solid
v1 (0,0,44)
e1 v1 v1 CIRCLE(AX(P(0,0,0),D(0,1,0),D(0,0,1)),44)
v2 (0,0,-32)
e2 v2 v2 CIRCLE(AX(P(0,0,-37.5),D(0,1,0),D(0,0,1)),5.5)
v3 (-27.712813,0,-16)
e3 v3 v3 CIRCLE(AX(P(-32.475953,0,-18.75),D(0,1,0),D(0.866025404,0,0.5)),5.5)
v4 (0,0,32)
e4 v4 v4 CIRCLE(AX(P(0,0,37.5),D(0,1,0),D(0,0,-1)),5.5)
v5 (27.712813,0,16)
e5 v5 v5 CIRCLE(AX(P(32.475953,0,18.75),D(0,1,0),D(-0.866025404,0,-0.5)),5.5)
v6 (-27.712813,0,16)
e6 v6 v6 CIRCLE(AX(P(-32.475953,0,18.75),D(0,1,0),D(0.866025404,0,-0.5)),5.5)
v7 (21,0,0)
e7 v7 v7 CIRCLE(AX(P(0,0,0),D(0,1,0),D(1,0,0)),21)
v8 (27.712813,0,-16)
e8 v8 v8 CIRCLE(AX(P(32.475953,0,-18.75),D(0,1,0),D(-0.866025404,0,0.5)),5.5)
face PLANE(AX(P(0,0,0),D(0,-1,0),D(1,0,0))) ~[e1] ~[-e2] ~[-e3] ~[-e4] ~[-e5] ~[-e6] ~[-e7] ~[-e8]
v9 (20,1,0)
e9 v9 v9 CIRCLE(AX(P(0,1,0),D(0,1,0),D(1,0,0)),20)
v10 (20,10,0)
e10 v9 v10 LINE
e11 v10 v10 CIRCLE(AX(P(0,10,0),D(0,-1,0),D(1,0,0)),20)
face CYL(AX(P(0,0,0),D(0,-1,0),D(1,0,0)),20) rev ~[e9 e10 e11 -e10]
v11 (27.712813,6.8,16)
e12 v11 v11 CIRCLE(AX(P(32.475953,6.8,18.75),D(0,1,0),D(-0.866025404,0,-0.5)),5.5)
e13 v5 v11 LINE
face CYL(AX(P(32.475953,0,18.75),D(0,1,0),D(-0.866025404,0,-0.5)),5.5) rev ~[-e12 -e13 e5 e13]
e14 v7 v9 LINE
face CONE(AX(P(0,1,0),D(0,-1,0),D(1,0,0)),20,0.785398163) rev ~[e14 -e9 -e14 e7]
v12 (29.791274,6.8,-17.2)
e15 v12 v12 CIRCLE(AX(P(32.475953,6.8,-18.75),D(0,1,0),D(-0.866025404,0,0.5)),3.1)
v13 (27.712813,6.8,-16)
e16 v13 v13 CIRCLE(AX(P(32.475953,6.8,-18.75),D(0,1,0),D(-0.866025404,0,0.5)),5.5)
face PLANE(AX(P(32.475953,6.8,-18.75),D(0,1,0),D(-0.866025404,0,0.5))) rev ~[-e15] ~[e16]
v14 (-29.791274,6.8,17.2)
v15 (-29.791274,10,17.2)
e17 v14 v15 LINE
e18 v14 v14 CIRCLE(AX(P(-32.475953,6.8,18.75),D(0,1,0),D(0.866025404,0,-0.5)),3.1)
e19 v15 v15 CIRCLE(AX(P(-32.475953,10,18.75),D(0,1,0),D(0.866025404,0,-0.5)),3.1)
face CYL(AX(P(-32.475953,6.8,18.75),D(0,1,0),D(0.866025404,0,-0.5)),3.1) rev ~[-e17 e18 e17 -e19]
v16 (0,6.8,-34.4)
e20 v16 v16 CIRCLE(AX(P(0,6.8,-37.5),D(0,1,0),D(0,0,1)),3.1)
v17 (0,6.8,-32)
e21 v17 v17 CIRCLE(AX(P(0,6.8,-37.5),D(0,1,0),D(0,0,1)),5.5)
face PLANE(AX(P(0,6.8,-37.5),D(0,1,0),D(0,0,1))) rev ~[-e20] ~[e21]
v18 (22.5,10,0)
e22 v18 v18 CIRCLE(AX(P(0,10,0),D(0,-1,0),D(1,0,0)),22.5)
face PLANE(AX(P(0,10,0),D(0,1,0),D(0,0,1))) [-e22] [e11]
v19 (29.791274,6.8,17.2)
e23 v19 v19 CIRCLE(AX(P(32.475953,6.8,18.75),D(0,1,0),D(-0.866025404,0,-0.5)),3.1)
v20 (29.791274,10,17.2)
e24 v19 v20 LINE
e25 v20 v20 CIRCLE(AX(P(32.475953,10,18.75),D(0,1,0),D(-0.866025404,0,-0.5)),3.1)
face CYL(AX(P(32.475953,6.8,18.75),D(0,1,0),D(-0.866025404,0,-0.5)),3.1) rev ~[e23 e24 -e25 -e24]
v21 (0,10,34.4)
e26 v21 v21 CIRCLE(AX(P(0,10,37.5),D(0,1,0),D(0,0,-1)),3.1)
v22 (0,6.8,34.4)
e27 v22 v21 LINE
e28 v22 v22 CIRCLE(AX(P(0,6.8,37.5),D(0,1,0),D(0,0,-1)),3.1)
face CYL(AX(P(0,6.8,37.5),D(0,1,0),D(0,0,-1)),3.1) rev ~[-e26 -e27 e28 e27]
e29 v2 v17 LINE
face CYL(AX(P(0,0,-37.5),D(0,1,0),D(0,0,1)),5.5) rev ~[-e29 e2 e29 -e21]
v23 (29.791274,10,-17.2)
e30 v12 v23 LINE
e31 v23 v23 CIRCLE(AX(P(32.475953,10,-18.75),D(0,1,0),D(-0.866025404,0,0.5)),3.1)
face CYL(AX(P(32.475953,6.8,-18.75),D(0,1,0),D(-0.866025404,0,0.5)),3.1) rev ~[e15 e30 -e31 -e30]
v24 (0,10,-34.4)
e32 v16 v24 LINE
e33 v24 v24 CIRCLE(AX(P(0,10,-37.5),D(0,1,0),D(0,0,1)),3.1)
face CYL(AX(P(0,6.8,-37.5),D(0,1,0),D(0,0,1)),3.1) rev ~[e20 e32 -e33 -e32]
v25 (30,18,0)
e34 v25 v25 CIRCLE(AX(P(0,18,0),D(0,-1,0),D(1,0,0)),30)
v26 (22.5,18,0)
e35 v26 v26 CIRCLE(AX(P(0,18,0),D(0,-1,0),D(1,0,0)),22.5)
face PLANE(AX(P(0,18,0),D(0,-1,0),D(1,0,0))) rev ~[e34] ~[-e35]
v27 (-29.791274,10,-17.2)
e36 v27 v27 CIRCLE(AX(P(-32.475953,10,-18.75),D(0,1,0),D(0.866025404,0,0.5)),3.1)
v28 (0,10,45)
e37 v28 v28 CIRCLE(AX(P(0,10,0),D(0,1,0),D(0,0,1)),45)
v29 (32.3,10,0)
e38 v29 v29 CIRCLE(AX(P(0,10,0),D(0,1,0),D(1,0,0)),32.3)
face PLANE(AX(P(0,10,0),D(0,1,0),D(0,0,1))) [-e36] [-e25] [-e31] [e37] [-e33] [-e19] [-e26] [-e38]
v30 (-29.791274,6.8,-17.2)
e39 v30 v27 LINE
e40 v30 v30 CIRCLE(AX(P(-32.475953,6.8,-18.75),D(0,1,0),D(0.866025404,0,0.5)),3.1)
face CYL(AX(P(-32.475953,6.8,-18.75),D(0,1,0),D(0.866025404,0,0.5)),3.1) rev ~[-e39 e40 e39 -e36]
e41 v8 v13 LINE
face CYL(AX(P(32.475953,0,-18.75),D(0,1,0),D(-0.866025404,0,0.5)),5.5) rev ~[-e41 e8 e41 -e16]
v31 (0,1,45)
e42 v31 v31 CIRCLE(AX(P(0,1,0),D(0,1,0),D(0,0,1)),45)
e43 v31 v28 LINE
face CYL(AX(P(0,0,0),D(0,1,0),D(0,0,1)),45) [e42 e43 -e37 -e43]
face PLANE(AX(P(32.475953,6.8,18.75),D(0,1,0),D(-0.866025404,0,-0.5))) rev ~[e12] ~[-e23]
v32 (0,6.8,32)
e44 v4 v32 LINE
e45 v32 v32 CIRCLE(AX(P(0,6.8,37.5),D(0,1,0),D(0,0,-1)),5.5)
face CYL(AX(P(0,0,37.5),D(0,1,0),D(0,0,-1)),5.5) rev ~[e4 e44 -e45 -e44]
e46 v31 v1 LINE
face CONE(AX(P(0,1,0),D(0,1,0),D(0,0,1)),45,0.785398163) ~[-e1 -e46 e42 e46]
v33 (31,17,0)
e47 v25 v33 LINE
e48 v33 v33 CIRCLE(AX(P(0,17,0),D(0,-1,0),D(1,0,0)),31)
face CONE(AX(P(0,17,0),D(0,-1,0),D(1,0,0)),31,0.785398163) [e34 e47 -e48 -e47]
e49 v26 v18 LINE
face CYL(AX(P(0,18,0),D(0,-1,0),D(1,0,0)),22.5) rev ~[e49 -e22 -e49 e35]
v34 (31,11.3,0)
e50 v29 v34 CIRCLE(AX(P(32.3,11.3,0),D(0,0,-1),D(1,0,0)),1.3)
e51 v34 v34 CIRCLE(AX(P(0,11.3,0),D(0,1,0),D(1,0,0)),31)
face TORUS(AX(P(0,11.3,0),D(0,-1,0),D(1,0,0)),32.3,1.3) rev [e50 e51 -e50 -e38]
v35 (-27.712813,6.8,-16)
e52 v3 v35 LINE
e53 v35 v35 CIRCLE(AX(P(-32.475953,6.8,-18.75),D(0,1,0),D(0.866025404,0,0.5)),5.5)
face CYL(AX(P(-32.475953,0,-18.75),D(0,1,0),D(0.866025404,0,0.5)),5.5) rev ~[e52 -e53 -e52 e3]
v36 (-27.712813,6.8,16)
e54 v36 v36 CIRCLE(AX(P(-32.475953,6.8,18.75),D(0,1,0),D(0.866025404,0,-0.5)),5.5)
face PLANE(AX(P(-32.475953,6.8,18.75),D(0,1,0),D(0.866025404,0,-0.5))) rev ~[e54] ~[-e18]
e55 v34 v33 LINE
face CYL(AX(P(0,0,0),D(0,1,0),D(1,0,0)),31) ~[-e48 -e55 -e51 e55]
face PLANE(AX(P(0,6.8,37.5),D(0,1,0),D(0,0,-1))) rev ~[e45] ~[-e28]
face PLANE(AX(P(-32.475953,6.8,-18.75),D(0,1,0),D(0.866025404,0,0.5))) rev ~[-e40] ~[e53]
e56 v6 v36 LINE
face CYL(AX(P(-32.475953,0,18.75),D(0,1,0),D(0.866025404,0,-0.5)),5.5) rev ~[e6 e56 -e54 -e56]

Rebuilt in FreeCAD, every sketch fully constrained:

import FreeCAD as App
import Part
import Sketcher
Q = App.Units.Quantity


def edges_at(feature, points):
    """Names of the edges that pass closest to the given points."""
    edges = feature.Shape.Edges
    near = lambda p: min(range(len(edges)), key=lambda i: edges[i].distToShape(Part.Vertex(*p))[0])
    return sorted({f"Edge{near(p) + 1}" for p in points})

doc = App.newDocument("Part")
body = doc.addObject("PartDesign::Body", "Body")

# Sketch on XY plane
sketch1 = doc.addObject("Sketcher::SketchObject", "Sketch")
body.addObject(sketch1)
sketch1.AttachmentSupport = (doc.XY_Plane, [""])
sketch1.MapMode = "FlatFace"
sketch1.addGeometry([
    Part.LineSegment(App.Vector(22, 8, 0), App.Vector(0, 8, 0)),  # 0
    Part.LineSegment(App.Vector(0, 8, 0), App.Vector(0, 0, 0)),  # 1
    Part.LineSegment(App.Vector(0, 0, 0), App.Vector(31, 0, 0)),  # 2
    Part.LineSegment(App.Vector(31, 0, 0), App.Vector(31, 18, 0)),  # 3
    Part.LineSegment(App.Vector(31, 18, 0), App.Vector(22, 18, 0)),  # 4
    Part.LineSegment(App.Vector(22, 18, 0), App.Vector(22, 8, 0)),  # 5
], False)
sketch1.addConstraint([
    Sketcher.Constraint("Coincident", 0, 2, 1, 1),
    Sketcher.Constraint("Coincident", 1, 2, 2, 1),
    Sketcher.Constraint("Coincident", 2, 2, 3, 1),
    Sketcher.Constraint("Coincident", 3, 2, 4, 1),
    Sketcher.Constraint("Coincident", 4, 2, 5, 1),
    Sketcher.Constraint("Coincident", 5, 2, 0, 1),
    Sketcher.Constraint("Horizontal", 0),
    Sketcher.Constraint("Vertical", 1),
    Sketcher.Constraint("Horizontal", 2),
    Sketcher.Constraint("Vertical", 3),
    Sketcher.Constraint("Horizontal", 4),
    Sketcher.Constraint("Vertical", 5),
    Sketcher.Constraint("Coincident", 1, 2, -1, 1),
    Sketcher.Constraint("Equal", 4, 1),
    Sketcher.Constraint("DistanceX", 2, 1, 2, 2, Q("31 mm")),
    Sketcher.Constraint("DistanceY", 3, 1, 3, 2, Q("18 mm")),
    Sketcher.Constraint("DistanceX", 0, 2, 0, 1, Q("22.5 mm")),
])
revolution = doc.addObject("PartDesign::Revolution", "Revolution")
body.addObject(revolution)
revolution.Profile = sketch1
revolution.ReferenceAxis = (sketch1, ["V_Axis"])
revolution.Angle = 360

# Sketch on YZ plane
sketch2 = doc.addObject("Sketcher::SketchObject", "Sketch001")
body.addObject(sketch2)
sketch2.AttachmentSupport = (doc.YZ_Plane, [""])
sketch2.MapMode = "FlatFace"
sketch2.addGeometry([
    Part.LineSegment(App.Vector(10, 0, 0), App.Vector(10, 45, 0)),
    Part.LineSegment(App.Vector(10, 45, 0), App.Vector(0, 45, 0)),
    Part.LineSegment(App.Vector(0, 45, 0), App.Vector(0, 0, 0)),
    Part.LineSegment(App.Vector(0, 0, 0), App.Vector(10, 0, 0)),
], False)
sketch2.addConstraint([
    Sketcher.Constraint("Coincident", 0, 2, 1, 1),
    Sketcher.Constraint("Coincident", 1, 2, 2, 1),
    Sketcher.Constraint("Coincident", 2, 2, 3, 1),
    Sketcher.Constraint("Coincident", 3, 2, 0, 1),
    Sketcher.Constraint("Vertical", 0),
    Sketcher.Constraint("Horizontal", 1),
    Sketcher.Constraint("Vertical", 2),
    Sketcher.Constraint("Horizontal", 3),
    Sketcher.Constraint("Coincident", 2, 2, -1, 1),
    Sketcher.Constraint("DistanceX", 1, 2, 1, 1, Q("10 mm")),
    Sketcher.Constraint("DistanceY", 0, 1, 0, 2, Q("45 mm")),
])
revolution2 = doc.addObject("PartDesign::Revolution", "Revolution001")
body.addObject(revolution2)
revolution2.Profile = sketch2
revolution2.ReferenceAxis = (sketch2, ["H_Axis"])
revolution2.Angle = 360

# Sketch on XZ plane
sketch3 = doc.addObject("Sketcher::SketchObject", "Sketch002")
body.addObject(sketch3)
sketch3.AttachmentSupport = (doc.XZ_Plane, [""])
sketch3.MapMode = "FlatFace"
sketch3.addGeometry(Part.Circle(App.Vector(0, 37.5, 0), App.Vector(0, 0, 1), 3.1), False)
sketch3.addConstraint([
    Sketcher.Constraint("PointOnObject", 0, 3, -2),
    Sketcher.Constraint("Diameter", 0, Q("6.2 mm")),
    Sketcher.Constraint("DistanceY", -1, 1, 0, 3, Q("37.5 mm")),
])
doc.recompute()
hole = doc.addObject("PartDesign::Hole", "Hole")
body.addObject(hole)
hole.Profile = sketch3
hole.ThreadType = "None"
hole.Diameter = 6.2
hole.DepthType = "Dimension"
hole.Depth = 15
hole.DrillPoint = "Angled"
hole.DrillPointAngle = 118
hole.HoleCutType = "Counterbore"
hole.HoleCutDiameter = 11
hole.HoleCutDepth = 6.8
doc.recompute()

polarpattern = doc.addObject("PartDesign::PolarPattern", "PolarPattern")
body.addObject(polarpattern)
polarpattern.Originals = [hole]
polarpattern.Axis = (doc.Y_Axis, [""])
polarpattern.Angle = 360
polarpattern.Occurrences = 6
body.Tip = polarpattern
doc.recompute()

fillet = doc.addObject("PartDesign::Fillet", "Fillet")
body.addObject(fillet)
fillet.Base = (polarpattern, edges_at(polarpattern, [(-31, 10, 0)]))
fillet.Radius = 1.3
doc.recompute()

chamfer = doc.addObject("PartDesign::Chamfer", "Chamfer")
body.addObject(chamfer)
chamfer.Base = (fillet, edges_at(fillet, [(0, 0, -45)]))
chamfer.Size = 1

# Sketch on XZ plane
sketch4 = doc.addObject("Sketcher::SketchObject", "Sketch003")
body.addObject(sketch4)
sketch4.AttachmentSupport = (doc.XZ_Plane, [""])
sketch4.MapMode = "FlatFace"
sketch4.addGeometry(Part.Circle(App.Vector(0, 0, 0), App.Vector(0, 0, 1), 20), False)
sketch4.addConstraint([
    Sketcher.Constraint("Coincident", 0, 3, -1, 1),
    Sketcher.Constraint("Diameter", 0, Q("40 mm")),
])
pocket1 = doc.addObject("PartDesign::Pocket", "Pocket")
body.addObject(pocket1)
pocket1.Profile = sketch4
pocket1.Length = 15
doc.recompute()

chamfer2 = doc.addObject("PartDesign::Chamfer", "Chamfer001")
body.addObject(chamfer2)
chamfer2.Base = (pocket1, edges_at(pocket1, [(-20, 0, 0)]))
chamfer2.Size = 1
doc.recompute()

chamfer3 = doc.addObject("PartDesign::Chamfer", "Chamfer002")
body.addObject(chamfer3)
chamfer3.Base = (chamfer2, edges_at(chamfer2, [(-31, 18, 0)]))
chamfer3.Size = 1

doc.recompute()
